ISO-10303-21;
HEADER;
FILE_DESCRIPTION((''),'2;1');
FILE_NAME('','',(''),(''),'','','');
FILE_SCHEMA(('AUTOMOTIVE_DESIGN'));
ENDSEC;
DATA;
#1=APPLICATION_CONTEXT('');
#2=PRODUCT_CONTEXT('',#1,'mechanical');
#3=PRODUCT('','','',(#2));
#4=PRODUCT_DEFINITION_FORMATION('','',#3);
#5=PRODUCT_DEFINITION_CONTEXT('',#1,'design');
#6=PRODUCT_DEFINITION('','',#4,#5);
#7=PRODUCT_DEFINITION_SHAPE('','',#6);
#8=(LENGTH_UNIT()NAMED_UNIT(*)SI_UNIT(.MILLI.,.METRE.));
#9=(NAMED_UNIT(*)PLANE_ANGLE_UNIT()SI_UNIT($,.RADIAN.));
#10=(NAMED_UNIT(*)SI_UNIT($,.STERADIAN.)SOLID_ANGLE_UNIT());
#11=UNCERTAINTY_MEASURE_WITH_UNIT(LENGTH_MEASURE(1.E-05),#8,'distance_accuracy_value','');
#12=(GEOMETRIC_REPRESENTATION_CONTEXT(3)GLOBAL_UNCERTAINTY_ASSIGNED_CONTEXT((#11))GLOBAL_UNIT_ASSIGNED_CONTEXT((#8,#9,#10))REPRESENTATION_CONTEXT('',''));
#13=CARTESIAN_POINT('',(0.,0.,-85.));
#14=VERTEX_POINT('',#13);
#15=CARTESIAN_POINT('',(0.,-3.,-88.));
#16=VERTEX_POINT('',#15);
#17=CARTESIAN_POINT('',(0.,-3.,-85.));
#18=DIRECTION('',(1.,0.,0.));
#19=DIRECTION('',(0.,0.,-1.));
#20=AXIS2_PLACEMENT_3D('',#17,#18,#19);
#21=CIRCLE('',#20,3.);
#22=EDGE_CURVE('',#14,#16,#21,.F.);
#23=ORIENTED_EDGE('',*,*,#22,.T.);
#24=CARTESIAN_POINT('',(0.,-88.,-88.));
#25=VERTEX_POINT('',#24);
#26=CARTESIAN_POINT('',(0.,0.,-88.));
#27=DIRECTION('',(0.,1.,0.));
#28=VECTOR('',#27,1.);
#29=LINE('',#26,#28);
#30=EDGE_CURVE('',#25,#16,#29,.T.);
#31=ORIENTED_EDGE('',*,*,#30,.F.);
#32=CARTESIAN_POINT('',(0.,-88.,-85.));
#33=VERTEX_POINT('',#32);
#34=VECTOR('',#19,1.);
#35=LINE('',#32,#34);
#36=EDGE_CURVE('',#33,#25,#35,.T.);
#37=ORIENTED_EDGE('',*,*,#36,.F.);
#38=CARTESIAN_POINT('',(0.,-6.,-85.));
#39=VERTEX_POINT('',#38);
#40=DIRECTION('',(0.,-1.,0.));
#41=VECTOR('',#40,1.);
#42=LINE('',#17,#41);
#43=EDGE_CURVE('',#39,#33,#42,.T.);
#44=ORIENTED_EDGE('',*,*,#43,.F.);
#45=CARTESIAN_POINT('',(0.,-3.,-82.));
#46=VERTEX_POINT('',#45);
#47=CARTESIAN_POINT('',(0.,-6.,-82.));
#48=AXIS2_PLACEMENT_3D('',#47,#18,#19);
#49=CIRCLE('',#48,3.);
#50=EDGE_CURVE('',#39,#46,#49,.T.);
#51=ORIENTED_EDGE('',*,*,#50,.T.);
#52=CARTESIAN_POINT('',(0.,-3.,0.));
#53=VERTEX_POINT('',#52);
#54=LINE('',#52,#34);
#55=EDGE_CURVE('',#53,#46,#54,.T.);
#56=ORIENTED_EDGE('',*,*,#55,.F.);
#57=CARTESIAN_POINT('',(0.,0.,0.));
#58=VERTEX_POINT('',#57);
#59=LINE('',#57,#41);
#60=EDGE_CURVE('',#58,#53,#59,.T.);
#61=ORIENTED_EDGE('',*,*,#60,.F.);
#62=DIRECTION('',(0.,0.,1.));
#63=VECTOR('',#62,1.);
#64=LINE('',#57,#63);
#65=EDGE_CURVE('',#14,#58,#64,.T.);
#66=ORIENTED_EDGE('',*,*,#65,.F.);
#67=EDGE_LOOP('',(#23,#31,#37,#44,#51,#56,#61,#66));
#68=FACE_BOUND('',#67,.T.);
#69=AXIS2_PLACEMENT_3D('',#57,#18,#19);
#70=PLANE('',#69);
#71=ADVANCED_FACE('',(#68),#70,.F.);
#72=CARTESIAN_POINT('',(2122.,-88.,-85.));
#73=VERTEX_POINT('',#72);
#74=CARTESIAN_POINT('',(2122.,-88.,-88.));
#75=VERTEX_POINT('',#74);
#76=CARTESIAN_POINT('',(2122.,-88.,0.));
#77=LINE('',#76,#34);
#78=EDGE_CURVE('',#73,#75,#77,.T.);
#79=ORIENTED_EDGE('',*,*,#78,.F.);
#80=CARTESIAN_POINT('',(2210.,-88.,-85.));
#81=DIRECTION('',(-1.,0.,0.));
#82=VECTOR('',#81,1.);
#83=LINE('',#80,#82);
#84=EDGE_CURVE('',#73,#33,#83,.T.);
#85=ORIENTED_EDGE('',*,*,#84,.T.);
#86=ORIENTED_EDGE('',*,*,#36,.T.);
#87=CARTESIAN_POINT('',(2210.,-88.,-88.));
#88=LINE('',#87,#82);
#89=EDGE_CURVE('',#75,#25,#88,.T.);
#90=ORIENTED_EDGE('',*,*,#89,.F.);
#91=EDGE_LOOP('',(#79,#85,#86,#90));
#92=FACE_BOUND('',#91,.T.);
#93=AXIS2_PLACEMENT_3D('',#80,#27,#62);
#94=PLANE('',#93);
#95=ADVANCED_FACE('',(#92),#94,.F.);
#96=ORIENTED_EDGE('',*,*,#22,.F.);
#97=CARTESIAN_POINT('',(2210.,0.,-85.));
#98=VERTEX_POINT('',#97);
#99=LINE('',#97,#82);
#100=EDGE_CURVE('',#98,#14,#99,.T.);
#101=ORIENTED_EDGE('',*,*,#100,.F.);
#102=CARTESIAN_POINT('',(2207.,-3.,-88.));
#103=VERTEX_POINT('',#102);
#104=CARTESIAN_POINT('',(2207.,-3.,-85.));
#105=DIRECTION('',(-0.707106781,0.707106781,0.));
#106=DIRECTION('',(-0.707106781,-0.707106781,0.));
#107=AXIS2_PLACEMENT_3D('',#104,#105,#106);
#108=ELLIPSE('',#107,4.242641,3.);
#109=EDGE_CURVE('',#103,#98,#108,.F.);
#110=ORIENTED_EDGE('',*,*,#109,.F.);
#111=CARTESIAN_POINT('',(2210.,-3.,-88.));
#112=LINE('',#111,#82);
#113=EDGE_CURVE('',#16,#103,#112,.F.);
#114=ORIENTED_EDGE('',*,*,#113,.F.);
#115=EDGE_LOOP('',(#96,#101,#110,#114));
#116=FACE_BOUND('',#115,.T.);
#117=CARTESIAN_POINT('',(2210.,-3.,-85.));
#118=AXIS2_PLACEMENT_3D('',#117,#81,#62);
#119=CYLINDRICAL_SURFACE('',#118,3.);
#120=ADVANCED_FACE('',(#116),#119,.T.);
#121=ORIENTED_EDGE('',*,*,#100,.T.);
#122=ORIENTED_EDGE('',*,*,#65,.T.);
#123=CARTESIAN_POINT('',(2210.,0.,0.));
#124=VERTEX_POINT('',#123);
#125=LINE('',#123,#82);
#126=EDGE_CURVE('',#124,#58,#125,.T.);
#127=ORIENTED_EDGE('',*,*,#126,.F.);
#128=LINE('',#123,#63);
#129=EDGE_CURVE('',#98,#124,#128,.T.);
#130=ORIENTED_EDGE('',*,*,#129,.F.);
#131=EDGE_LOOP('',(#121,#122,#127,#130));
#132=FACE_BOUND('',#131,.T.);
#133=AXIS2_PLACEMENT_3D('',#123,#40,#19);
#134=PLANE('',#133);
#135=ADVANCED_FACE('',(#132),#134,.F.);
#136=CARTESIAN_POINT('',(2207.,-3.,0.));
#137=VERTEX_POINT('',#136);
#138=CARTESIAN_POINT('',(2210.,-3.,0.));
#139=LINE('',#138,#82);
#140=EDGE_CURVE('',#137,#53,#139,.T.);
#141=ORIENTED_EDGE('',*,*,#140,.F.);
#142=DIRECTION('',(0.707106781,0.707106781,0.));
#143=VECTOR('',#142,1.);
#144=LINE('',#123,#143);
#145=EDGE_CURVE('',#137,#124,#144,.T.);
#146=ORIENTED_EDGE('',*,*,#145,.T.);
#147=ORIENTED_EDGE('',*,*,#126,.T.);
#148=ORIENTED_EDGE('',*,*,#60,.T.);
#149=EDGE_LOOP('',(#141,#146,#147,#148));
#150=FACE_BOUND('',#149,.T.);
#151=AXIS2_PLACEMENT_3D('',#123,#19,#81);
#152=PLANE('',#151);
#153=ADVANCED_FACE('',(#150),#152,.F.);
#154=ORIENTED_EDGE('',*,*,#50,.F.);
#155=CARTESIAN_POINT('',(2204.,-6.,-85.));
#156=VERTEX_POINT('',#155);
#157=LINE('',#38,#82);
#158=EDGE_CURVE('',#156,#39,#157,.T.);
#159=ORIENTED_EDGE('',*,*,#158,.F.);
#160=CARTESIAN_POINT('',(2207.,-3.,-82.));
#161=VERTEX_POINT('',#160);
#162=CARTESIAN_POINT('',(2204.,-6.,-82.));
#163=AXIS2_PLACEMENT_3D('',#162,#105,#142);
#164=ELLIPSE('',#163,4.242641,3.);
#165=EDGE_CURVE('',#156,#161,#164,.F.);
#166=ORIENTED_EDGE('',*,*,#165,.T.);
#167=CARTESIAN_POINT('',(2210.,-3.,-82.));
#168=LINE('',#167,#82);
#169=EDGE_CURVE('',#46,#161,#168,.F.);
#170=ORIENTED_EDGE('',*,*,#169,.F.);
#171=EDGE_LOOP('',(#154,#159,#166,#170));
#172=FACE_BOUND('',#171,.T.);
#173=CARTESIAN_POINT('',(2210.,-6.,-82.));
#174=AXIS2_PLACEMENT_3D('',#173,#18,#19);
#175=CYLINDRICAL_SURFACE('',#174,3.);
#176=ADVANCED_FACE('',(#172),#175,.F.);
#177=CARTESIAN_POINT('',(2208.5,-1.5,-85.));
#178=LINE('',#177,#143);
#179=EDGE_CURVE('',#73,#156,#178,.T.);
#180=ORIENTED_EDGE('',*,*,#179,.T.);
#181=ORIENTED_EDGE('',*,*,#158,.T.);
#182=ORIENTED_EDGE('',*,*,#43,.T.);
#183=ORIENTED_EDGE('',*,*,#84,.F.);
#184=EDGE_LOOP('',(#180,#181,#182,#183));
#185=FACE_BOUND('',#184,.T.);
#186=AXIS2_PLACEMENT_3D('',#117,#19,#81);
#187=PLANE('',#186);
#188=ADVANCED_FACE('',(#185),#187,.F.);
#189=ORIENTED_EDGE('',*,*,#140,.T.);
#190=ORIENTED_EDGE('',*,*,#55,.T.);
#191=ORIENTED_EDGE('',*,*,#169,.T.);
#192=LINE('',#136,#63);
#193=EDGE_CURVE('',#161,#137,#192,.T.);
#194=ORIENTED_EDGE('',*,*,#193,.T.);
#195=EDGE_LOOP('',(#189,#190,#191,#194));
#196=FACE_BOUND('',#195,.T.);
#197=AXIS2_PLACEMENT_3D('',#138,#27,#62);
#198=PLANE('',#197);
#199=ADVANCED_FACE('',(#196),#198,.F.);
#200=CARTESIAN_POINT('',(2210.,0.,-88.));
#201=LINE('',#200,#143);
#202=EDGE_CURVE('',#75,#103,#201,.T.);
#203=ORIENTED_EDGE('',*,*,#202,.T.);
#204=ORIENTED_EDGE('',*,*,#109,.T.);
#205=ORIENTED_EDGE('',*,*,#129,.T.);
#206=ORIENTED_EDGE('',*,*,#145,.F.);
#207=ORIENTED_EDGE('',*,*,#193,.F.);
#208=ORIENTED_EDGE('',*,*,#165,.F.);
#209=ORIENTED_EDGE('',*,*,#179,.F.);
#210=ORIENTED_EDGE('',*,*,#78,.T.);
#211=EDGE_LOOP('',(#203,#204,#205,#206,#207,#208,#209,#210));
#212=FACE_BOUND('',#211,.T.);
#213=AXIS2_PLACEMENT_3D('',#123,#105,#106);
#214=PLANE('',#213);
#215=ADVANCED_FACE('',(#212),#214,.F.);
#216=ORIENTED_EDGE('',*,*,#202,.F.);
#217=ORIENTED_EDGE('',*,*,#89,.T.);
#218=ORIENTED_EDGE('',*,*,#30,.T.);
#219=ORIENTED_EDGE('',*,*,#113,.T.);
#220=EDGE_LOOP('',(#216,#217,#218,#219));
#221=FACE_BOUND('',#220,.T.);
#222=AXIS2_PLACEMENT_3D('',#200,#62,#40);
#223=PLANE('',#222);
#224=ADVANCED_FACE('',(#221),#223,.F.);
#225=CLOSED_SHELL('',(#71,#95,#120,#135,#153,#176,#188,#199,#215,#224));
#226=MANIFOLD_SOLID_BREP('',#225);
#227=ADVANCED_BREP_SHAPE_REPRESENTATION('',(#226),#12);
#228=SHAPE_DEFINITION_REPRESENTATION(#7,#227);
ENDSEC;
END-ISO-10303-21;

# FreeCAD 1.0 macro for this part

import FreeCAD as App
import Part
import Sketcher
from FreeCAD import Vector


def edges_at(feature, points):
    """Names of the edges that pass closest to the given points."""
    edges = feature.Shape.Edges
    near = lambda p: min(range(len(edges)), key=lambda i: edges[i].distToShape(Part.Vertex(*p))[0])
    return sorted({f"Edge{near(p) + 1}" for p in points})


def add_polygon(sketch, points):
    """Adds a closed chain of lines whose ends are joined by coincident constraints."""
    first, n = sketch.GeometryCount, len(points)
    for a, b in zip(points, points[1:] + points[:1]):
        sketch.addGeometry(Part.LineSegment(App.Vector(*a, 0), App.Vector(*b, 0)), False)
    for i in range(n):
        sketch.addConstraint(Sketcher.Constraint("Coincident", first + i, 2, first + (i + 1) % n, 1))

doc = App.newDocument("Part")
params = doc.addObject("Spreadsheet::Sheet", "Params")
for row, (alias, value) in enumerate([
    ("sketch1_width", "3 mm"),
    ("sketch1_width2", "85 mm"),
    ("pad1_length", "2210 mm"),
    ("fillet_radius", "3 mm"),
    ("sketch2_width", "88 mm"),
    ("pocket1_length", "88 mm"),
], start=1):
    params.set(f"A{row}", alias)
    params.set(f"B{row}", "=" + value)
    params.setAlias(f"B{row}", alias)

body = doc.addObject("PartDesign::Body", "Body")

# Sketch on YZ plane
sketch1 = doc.addObject("Sketcher::SketchObject", "Sketch")
body.addObject(sketch1)
sketch1.AttachmentSupport = (doc.YZ_Plane, [""])
sketch1.MapMode = "FlatFace"
add_polygon(sketch1, [(0, -88), (0, 0), (-3, 0), (-3, -85), (-88, -85), (-88, -88)])  # lines 0-5
sketch1.addConstraint(Sketcher.Constraint("Vertical", 0))
sketch1.addConstraint(Sketcher.Constraint("Horizontal", 1))
sketch1.addConstraint(Sketcher.Constraint("Vertical", 2))
sketch1.addConstraint(Sketcher.Constraint("Horizontal", 3))
sketch1.addConstraint(Sketcher.Constraint("Vertical", 4))
sketch1.addConstraint(Sketcher.Constraint("Horizontal", 5))
sketch1.addConstraint(Sketcher.Constraint("Coincident", 0, 2, -1, 1))
sketch1.addConstraint(Sketcher.Constraint("Equal", 5, 0))
sketch1.addConstraint(Sketcher.Constraint("Equal", 3, 2))
sketch1.addConstraint(Sketcher.Constraint("DistanceX", 1, 2, 1, 1, 3.0))
sketch1.addConstraint(Sketcher.Constraint("DistanceX", 3, 2, 3, 1, 85.0))
sketch1.setExpression("Constraints[15]", "Params.sketch1_width")
sketch1.setExpression("Constraints[16]", "Params.sketch1_width2")
pad1 = doc.addObject("PartDesign::Pad", "Pad")
body.addObject(pad1)
pad1.Profile = sketch1
pad1.setExpression("Length", "Params.pad1_length")
doc.recompute()

fillet = doc.addObject("PartDesign::Fillet", "Fillet")
body.addObject(fillet)
fillet.Base = (pad1, edges_at(pad1, [(1105, 0, -88), (1105, -3, -85)]))
fillet.setExpression("Radius", "Params.fillet_radius")

# Sketch on XY plane
sketch2 = doc.addObject("Sketcher::SketchObject", "Sketch001")
body.addObject(sketch2)
sketch2.AttachmentSupport = (doc.XY_Plane, [""])
sketch2.MapMode = "FlatFace"
sketch2.AttachmentOffset = App.Placement(Vector(0, 0, -88), App.Rotation())
add_polygon(sketch2, [(2122, -88), (2210, 0), (2210, -88)])  # lines 0-2
sketch2.addConstraint(Sketcher.Constraint("Vertical", 1))
sketch2.addConstraint(Sketcher.Constraint("Horizontal", 2))
sketch2.addConstraint(Sketcher.Constraint("PointOnObject", 0, 2, -1))
sketch2.addConstraint(Sketcher.Constraint("Equal", 2, 1))
sketch2.addConstraint(Sketcher.Constraint("DistanceX", 2, 2, 2, 1, 88.0))
sketch2.addConstraint(Sketcher.Constraint("DistanceX", -1, 1, 0, 2, 2210.0))
sketch2.setExpression("Constraints[7]", "Params.sketch2_width")
pocket1 = doc.addObject("PartDesign::Pocket", "Pocket")
body.addObject(pocket1)
pocket1.Profile = sketch2
pocket1.setExpression("Length", "Params.pocket1_length")
pocket1.Reversed = True

doc.recompute()
